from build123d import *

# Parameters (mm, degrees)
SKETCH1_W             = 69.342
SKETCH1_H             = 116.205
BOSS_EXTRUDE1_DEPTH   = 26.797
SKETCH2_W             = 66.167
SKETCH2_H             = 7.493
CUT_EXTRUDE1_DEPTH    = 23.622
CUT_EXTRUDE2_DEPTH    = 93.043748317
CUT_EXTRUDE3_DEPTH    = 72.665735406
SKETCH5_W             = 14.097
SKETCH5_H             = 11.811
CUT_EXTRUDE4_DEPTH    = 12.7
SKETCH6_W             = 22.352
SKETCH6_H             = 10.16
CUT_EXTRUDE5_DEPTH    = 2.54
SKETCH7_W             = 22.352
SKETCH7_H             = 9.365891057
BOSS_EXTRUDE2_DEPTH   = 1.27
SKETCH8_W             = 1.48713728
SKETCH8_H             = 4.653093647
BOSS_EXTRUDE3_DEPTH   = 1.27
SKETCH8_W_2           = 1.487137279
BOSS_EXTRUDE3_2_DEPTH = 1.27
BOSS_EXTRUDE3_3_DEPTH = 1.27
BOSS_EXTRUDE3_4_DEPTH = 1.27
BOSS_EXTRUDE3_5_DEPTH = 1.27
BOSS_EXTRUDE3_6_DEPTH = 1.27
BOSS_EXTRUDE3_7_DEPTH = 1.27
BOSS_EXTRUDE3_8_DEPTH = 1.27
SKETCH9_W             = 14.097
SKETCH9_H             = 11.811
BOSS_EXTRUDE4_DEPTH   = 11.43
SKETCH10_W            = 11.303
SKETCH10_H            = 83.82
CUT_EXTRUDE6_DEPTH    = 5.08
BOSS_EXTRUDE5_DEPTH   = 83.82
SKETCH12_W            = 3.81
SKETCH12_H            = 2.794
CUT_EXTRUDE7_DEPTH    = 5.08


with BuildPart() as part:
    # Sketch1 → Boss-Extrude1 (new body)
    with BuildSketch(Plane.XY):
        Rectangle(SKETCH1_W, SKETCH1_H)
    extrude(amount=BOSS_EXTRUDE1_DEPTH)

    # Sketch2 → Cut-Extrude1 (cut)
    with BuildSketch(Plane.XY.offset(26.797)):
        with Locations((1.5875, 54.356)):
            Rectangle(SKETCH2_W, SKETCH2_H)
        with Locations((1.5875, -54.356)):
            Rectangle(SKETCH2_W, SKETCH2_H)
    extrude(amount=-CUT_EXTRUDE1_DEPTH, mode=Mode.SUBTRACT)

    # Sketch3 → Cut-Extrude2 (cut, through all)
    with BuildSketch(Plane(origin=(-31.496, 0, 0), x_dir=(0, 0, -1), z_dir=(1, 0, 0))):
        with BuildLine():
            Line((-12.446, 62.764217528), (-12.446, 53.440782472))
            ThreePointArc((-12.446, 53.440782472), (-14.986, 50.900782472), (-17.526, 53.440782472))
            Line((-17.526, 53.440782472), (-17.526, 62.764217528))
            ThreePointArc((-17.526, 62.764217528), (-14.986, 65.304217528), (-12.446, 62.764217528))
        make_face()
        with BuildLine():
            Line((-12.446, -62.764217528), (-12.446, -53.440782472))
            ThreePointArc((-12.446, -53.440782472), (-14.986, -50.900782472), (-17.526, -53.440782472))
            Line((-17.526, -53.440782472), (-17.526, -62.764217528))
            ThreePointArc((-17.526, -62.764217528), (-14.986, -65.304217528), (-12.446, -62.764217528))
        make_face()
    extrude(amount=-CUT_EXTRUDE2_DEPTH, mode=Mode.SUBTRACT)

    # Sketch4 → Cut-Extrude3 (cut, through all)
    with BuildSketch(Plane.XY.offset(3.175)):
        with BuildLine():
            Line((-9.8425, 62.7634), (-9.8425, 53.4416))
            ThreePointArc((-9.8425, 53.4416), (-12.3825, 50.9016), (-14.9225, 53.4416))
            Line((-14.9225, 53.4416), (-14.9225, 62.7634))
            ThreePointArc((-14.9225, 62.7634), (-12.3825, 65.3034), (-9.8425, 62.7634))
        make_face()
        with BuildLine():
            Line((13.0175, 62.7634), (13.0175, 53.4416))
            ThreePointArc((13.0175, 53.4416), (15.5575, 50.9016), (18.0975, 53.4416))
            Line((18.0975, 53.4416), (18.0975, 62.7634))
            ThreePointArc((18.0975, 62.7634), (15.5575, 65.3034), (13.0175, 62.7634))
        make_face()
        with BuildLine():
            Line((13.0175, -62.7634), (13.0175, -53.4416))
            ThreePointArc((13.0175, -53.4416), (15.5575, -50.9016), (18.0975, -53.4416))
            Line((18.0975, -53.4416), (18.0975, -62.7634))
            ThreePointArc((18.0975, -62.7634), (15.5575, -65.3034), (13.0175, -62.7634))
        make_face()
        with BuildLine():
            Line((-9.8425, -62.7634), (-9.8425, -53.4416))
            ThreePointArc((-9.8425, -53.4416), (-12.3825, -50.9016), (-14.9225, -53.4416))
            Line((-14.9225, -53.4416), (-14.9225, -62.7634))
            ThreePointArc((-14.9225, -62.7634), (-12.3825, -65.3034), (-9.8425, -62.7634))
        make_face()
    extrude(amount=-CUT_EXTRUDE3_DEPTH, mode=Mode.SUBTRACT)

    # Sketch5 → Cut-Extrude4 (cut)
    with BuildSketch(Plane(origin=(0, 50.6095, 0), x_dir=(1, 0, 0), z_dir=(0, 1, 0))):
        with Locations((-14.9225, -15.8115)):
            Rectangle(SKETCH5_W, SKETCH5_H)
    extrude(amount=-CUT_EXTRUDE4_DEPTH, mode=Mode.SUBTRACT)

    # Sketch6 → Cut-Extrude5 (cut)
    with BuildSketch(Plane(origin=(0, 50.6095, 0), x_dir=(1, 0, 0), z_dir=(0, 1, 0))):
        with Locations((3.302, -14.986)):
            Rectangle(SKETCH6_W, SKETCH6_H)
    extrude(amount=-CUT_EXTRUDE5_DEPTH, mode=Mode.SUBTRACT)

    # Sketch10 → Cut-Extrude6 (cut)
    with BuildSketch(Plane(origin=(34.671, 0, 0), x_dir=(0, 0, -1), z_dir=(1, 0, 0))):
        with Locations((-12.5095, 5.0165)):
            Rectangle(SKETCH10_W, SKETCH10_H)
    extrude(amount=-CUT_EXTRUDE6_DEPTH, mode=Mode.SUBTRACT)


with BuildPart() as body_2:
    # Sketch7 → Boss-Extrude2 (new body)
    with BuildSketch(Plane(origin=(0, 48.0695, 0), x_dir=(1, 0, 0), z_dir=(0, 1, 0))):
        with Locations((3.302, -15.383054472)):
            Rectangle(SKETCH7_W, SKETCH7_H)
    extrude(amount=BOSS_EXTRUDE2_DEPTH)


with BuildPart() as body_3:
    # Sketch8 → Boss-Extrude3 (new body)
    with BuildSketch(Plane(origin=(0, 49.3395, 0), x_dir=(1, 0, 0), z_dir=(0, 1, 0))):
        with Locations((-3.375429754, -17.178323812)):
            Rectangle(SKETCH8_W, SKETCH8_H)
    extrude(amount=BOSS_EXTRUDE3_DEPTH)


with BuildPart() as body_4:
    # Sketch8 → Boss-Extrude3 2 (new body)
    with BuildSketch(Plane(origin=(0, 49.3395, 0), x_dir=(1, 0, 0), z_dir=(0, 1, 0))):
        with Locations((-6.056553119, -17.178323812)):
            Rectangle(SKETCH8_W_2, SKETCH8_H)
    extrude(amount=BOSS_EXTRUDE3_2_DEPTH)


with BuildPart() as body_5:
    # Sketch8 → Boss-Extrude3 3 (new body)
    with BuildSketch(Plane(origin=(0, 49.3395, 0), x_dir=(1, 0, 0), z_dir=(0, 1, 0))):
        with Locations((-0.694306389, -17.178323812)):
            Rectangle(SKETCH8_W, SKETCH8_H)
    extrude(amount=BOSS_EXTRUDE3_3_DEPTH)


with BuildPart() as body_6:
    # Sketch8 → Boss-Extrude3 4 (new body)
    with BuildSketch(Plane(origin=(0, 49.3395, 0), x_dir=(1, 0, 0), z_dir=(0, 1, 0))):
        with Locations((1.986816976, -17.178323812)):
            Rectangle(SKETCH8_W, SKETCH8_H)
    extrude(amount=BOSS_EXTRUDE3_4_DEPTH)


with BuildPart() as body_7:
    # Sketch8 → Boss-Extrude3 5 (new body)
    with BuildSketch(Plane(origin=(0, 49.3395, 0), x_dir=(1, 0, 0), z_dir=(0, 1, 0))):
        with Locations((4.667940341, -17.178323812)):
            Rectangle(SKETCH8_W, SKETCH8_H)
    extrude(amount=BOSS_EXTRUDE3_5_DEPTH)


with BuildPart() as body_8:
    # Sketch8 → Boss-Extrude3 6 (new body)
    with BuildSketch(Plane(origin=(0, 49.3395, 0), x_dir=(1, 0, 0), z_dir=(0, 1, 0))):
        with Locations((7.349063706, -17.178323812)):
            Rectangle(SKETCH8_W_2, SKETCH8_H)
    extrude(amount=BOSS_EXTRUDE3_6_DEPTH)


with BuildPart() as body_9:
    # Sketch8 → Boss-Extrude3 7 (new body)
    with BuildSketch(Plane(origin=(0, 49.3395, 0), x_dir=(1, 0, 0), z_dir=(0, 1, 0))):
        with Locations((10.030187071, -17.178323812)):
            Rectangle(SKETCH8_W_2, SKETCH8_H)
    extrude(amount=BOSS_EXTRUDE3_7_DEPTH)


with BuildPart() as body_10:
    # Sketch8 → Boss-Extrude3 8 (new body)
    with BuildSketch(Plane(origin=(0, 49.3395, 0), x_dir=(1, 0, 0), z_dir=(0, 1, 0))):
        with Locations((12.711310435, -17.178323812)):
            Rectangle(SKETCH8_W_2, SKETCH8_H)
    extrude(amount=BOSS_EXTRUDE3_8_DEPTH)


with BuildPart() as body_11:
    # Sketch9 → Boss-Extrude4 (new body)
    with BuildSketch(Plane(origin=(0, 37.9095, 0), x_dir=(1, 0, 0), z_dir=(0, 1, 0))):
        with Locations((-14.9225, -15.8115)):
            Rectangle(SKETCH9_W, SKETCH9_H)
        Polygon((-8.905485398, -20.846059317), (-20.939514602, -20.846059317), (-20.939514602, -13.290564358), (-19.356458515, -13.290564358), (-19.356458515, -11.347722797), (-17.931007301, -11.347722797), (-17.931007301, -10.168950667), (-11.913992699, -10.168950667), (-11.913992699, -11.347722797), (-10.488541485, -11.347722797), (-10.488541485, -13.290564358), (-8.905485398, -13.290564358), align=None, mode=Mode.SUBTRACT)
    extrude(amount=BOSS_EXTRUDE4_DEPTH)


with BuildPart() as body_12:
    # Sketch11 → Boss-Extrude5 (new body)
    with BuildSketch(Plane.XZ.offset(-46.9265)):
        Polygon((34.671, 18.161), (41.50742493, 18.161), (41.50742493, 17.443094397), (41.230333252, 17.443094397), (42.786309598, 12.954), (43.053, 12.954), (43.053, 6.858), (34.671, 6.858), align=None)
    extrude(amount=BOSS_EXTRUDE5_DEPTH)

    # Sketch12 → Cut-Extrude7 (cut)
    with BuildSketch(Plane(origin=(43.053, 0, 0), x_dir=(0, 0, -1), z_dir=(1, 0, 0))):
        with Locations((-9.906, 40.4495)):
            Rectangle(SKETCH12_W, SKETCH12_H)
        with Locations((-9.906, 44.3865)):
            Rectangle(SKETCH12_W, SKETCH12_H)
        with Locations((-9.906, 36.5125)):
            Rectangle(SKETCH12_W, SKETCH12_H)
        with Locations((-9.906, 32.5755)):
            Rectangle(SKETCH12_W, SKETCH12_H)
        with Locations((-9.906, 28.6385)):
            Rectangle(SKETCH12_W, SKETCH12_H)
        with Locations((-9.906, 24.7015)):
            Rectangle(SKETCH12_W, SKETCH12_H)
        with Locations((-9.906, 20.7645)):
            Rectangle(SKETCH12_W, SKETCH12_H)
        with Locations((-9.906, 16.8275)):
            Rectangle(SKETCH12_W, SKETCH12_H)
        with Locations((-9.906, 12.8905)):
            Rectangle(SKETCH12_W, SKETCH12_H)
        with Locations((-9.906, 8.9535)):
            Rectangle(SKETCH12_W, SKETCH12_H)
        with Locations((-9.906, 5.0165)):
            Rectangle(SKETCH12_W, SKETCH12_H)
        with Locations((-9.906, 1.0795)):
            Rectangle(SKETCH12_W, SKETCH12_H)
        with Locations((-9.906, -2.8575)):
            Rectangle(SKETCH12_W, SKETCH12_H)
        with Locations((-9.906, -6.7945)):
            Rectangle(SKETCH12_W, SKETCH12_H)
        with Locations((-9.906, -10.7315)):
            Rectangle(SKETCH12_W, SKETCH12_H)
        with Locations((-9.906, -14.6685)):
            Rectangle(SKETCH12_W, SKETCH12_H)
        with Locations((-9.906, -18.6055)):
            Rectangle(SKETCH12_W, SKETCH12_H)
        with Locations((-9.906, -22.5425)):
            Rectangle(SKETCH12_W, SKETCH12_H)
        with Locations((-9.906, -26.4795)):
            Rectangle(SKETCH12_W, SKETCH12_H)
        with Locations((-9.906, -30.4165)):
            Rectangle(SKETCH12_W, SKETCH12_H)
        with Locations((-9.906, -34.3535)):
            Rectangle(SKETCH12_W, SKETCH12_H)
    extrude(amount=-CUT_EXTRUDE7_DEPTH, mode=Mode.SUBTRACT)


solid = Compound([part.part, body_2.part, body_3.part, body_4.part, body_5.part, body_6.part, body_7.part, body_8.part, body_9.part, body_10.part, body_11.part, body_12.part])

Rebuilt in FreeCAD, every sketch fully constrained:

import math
import FreeCAD as App
import Part
import Sketcher
from FreeCAD import Vector
Q = App.Units.Quantity


def add_polygon(sketch, points):
    """Adds a closed chain of lines whose ends are joined by coincident constraints."""
    first, n = sketch.GeometryCount, len(points)
    for a, b in zip(points, points[1:] + points[:1]):
        sketch.addGeometry(Part.LineSegment(App.Vector(*a, 0), App.Vector(*b, 0)), False)
    for i in range(n):
        sketch.addConstraint(Sketcher.Constraint("Coincident", first + i, 2, first + (i + 1) % n, 1))

doc = App.newDocument("Part")
body = doc.addObject("PartDesign::Body", "Body")

# Sketch on XY plane
sketch1 = body.newObject("Sketcher::SketchObject", "Sketch")
sketch1.AttachmentSupport = (doc.getObject("XY_Plane"), [""])
sketch1.MapMode = "FlatFace"
add_polygon(sketch1, [(-34.671, 58.1025), (-34.671, -58.1025), (34.671, -58.1025), (34.671, 58.1025)])  # lines 0-3
sketch1.addConstraint([
    Sketcher.Constraint("Vertical", 0),
    Sketcher.Constraint("Horizontal", 1),
    Sketcher.Constraint("Vertical", 2),
    Sketcher.Constraint("Horizontal", 3),
    Sketcher.Constraint("Symmetric", 0, 2, 2, 2, -1, 1),
    Sketcher.Constraint("DistanceX", 1, 1, 1, 2, Q("2.73 in")),
    Sketcher.Constraint("DistanceY", 0, 2, 0, 1, Q("4.575 in")),
])
pad1 = body.newObject("PartDesign::Pad", "Pad")
pad1.Profile = sketch1
pad1.Length = Q("1.055 in")

# Sketch on XY plane
sketch2 = body.newObject("Sketcher::SketchObject", "Sketch001")
sketch2.AttachmentSupport = (doc.getObject("XY_Plane"), [""])
sketch2.MapMode = "FlatFace"
sketch2.AttachmentOffset = App.Placement(Vector(0, 0, 1.055 * 25.4), App.Rotation())
add_polygon(sketch2, [(-31.496, 58.1025), (-31.496, 50.6095), (34.671, 50.6095), (34.671, 58.1025)])  # lines 0-3
add_polygon(sketch2, [(-31.496, -50.6095), (-31.496, -58.1025), (34.671, -58.1025), (34.671, -50.6095)])  # lines 4-7
sketch2.addConstraint([
    Sketcher.Constraint("Vertical", 0),
    Sketcher.Constraint("Horizontal", 1),
    Sketcher.Constraint("Vertical", 2),
    Sketcher.Constraint("Horizontal", 3),
    Sketcher.Constraint("Vertical", 4),
    Sketcher.Constraint("Horizontal", 5),
    Sketcher.Constraint("Vertical", 6),
    Sketcher.Constraint("Horizontal", 7),
    Sketcher.Constraint("Symmetric", 3, 2, 4, 2, -1),
    Sketcher.Constraint("Symmetric", 1, 2, 6, 2, -1),
    Sketcher.Constraint("DistanceX", 1, 1, 1, 2, Q("2.605 in")),
    Sketcher.Constraint("DistanceY", 0, 2, 0, 1, Q("0.295 in")),
    Sketcher.Constraint("DistanceX", 0, 2, -1, 1, Q("1.24 in")),
    Sketcher.Constraint("DistanceY", 4, 2, 0, 2, Q("4.28 in")),
])
pocket1 = body.newObject("PartDesign::Pocket", "Pocket")
pocket1.Profile = sketch2
pocket1.Length = Q("0.93 in")

# Sketch on YZ plane
sketch3 = body.newObject("Sketcher::SketchObject", "Sketch002")
sketch3.AttachmentSupport = (doc.getObject("YZ_Plane"), [""])
sketch3.MapMode = "FlatFace"
sketch3.AttachmentOffset = App.Placement(Vector(0, 0, -1.24 * 25.4), App.Rotation())
sketch3.addGeometry([
    Part.LineSegment(Vector(53.440782, 12.446, 0), Vector(62.764218, 12.446, 0)),  # 0
    Part.ArcOfCircle(Part.Circle(Vector(62.764218, 14.986, 0), Vector(0, 0, 1), 2.54), math.radians(-90), math.radians(90)),  # 1
    Part.LineSegment(Vector(62.764218, 17.526, 0), Vector(53.440782, 17.526, 0)),  # 2
    Part.ArcOfCircle(Part.Circle(Vector(53.440782, 14.986, 0), Vector(0, 0, 1), 2.54), math.radians(90), math.radians(270)),  # 3
    Part.LineSegment(Vector(-62.764218, 12.446, 0), Vector(-53.440782, 12.446, 0)),  # 4
    Part.ArcOfCircle(Part.Circle(Vector(-53.440782, 14.986, 0), Vector(0, 0, 1), 2.54), math.radians(-90), math.radians(90)),  # 5
    Part.LineSegment(Vector(-53.440782, 17.526, 0), Vector(-62.764218, 17.526, 0)),  # 6
    Part.ArcOfCircle(Part.Circle(Vector(-62.764218, 14.986, 0), Vector(0, 0, 1), 2.54), math.radians(90), math.radians(270)),  # 7
], False)
sketch3.addConstraint([
    Sketcher.Constraint("Tangent", 0, 2, 1, 1),
    Sketcher.Constraint("Tangent", 1, 2, 2, 1),
    Sketcher.Constraint("Tangent", 2, 2, 3, 1),
    Sketcher.Constraint("Tangent", 3, 2, 0, 1),
    Sketcher.Constraint("Tangent", 4, 2, 5, 1),
    Sketcher.Constraint("Tangent", 5, 2, 6, 1),
    Sketcher.Constraint("Tangent", 6, 2, 7, 1),
    Sketcher.Constraint("Tangent", 7, 2, 4, 1),
    Sketcher.Constraint("Horizontal", 0),
    Sketcher.Constraint("Horizontal", 2),
    Sketcher.Constraint("Horizontal", 4),
    Sketcher.Constraint("Horizontal", 6),
    Sketcher.Constraint("Equal", 3, 5),
    Sketcher.Constraint("Symmetric", 3, 3, 5, 3, -2),
    Sketcher.Constraint("Equal", 2, 4),
    Sketcher.Constraint("Radius", 1, Q("0.1 in")),
    Sketcher.Constraint("DistanceY", -1, 1, 1, 3, Q("0.59 in")),
    Sketcher.Constraint("DistanceX", 5, 3, 1, 3, Q("4.575 in")),
    Sketcher.Constraint("DistanceX", 0, 1, 0, 2, Q("9.323435 mm")),
])
pocket2 = body.newObject("PartDesign::Pocket", "Pocket001")
pocket2.Profile = sketch3
pocket2.Type = "ThroughAll"

# Sketch on XY plane
sketch4 = body.newObject("Sketcher::SketchObject", "Sketch003")
sketch4.AttachmentSupport = (doc.getObject("XY_Plane"), [""])
sketch4.MapMode = "FlatFace"
sketch4.AttachmentOffset = App.Placement(Vector(0, 0, 0.125 * 25.4), App.Rotation())
sketch4.addGeometry([
    Part.LineSegment(Vector(-9.8425, 53.4416, 0), Vector(-9.8425, 62.7634, 0)),  # 0
    Part.ArcOfCircle(Part.Circle(Vector(-12.3825, 62.7634, 0), Vector(0, 0, 1), 2.54), math.radians(0), math.radians(180)),  # 1
    Part.LineSegment(Vector(-14.9225, 62.7634, 0), Vector(-14.9225, 53.4416, 0)),  # 2
    Part.ArcOfCircle(Part.Circle(Vector(-12.3825, 53.4416, 0), Vector(0, 0, 1), 2.54), math.radians(180), math.radians(360)),  # 3
    Part.LineSegment(Vector(13.0175, 62.7634, 0), Vector(13.0175, 53.4416, 0)),  # 4
    Part.ArcOfCircle(Part.Circle(Vector(15.5575, 53.4416, 0), Vector(0, 0, 1), 2.54), math.radians(180), math.radians(360)),  # 5
    Part.LineSegment(Vector(18.0975, 53.4416, 0), Vector(18.0975, 62.7634, 0)),  # 6
    Part.ArcOfCircle(Part.Circle(Vector(15.5575, 62.7634, 0), Vector(0, 0, 1), 2.54), math.radians(0), math.radians(180)),  # 7
    Part.LineSegment(Vector(13.0175, -53.4416, 0), Vector(13.0175, -62.7634, 0)),  # 8
    Part.ArcOfCircle(Part.Circle(Vector(15.5575, -62.7634, 0), Vector(0, 0, 1), 2.54), math.radians(180), math.radians(360)),  # 9
    Part.LineSegment(Vector(18.0975, -62.7634, 0), Vector(18.0975, -53.4416, 0)),  # 10
    Part.ArcOfCircle(Part.Circle(Vector(15.5575, -53.4416, 0), Vector(0, 0, 1), 2.54), math.radians(0), math.radians(180)),  # 11
    Part.LineSegment(Vector(-9.8425, -62.7634, 0), Vector(-9.8425, -53.4416, 0)),  # 12
    Part.ArcOfCircle(Part.Circle(Vector(-12.3825, -53.4416, 0), Vector(0, 0, 1), 2.54), math.radians(0), math.radians(180)),  # 13
    Part.LineSegment(Vector(-14.9225, -53.4416, 0), Vector(-14.9225, -62.7634, 0)),  # 14
    Part.ArcOfCircle(Part.Circle(Vector(-12.3825, -62.7634, 0), Vector(0, 0, 1), 2.54), math.radians(180), math.radians(360)),  # 15
], False)
sketch4.addConstraint([
    Sketcher.Constraint("Tangent", 0, 2, 1, 1),
    Sketcher.Constraint("Tangent", 1, 2, 2, 1),
    Sketcher.Constraint("Tangent", 2, 2, 3, 1),
    Sketcher.Constraint("Tangent", 3, 2, 0, 1),
    Sketcher.Constraint("Tangent", 4, 2, 5, 1),
    Sketcher.Constraint("Tangent", 5, 2, 6, 1),
    Sketcher.Constraint("Tangent", 6, 2, 7, 1),
    Sketcher.Constraint("Tangent", 7, 2, 4, 1),
    Sketcher.Constraint("Tangent", 8, 2, 9, 1),
    Sketcher.Constraint("Tangent", 9, 2, 10, 1),
    Sketcher.Constraint("Tangent", 10, 2, 11, 1),
    Sketcher.Constraint("Tangent", 11, 2, 8, 1),
    Sketcher.Constraint("Tangent", 12, 2, 13, 1),
    Sketcher.Constraint("Tangent", 13, 2, 14, 1),
    Sketcher.Constraint("Tangent", 14, 2, 15, 1),
    Sketcher.Constraint("Tangent", 15, 2, 12, 1),
    Sketcher.Constraint("Vertical", 0),
    Sketcher.Constraint("Vertical", 2),
    Sketcher.Constraint("Vertical", 4),
    Sketcher.Constraint("Vertical", 6),
    Sketcher.Constraint("Vertical", 8),
    Sketcher.Constraint("Vertical", 10),
    Sketcher.Constraint("Vertical", 12),
    Sketcher.Constraint("Vertical", 14),
    Sketcher.Constraint("Equal", 3, 5),
    Sketcher.Constraint("Equal", 7, 9),
    Sketcher.Constraint("Equal", 11, 13),
    Sketcher.Constraint("Symmetric", 7, 3, 9, 3, -1),
    Sketcher.Constraint("Symmetric", 3, 3, 13, 3, -1),
    Sketcher.Constraint("Horizontal", 3, 3, 5, 3),
    Sketcher.Constraint("Horizontal", 1, 3, 7, 3),
    Sketcher.Constraint("Horizontal", 11, 3, 13, 3),
    Sketcher.Constraint("Horizontal", 9, 3, 15, 3),
    Sketcher.Constraint("Radius", 1, Q("0.1 in")),
    Sketcher.Constraint("DistanceX", 0, 2, 7, 3, Q("1 in")),
    Sketcher.Constraint("DistanceY", 0, 1, 0, 2, Q("0.367 in")),
    Sketcher.Constraint("DistanceY", -1, 1, 1, 3, Q("2.471 in")),
    Sketcher.Constraint("DistanceX", 1, 3, -1, 1, Q("0.4875 in")),
])
pocket3 = body.newObject("PartDesign::Pocket", "Pocket002")
pocket3.Profile = sketch4
pocket3.Type = "ThroughAll"

# Sketch on XZ plane
sketch5 = body.newObject("Sketcher::SketchObject", "Sketch004")
sketch5.AttachmentSupport = (doc.getObject("XZ_Plane"), [""])
sketch5.MapMode = "FlatFace"
sketch5.AttachmentOffset = App.Placement(Vector(0, 0, -1.9925 * 25.4), App.Rotation())
add_polygon(sketch5, [(-21.971, 9.906), (-21.971, 21.717), (-7.874, 21.717), (-7.874, 9.906)])  # lines 0-3
sketch5.addConstraint([
    Sketcher.Constraint("Vertical", 0),
    Sketcher.Constraint("Horizontal", 1),
    Sketcher.Constraint("Vertical", 2),
    Sketcher.Constraint("Horizontal", 3),
    Sketcher.Constraint("DistanceX", 1, 1, 1, 2, Q("0.555 in")),
    Sketcher.Constraint("DistanceY", 0, 1, 0, 2, Q("0.465 in")),
    Sketcher.Constraint("DistanceX", 1, 2, -1, 1, Q("0.31 in")),
    Sketcher.Constraint("DistanceY", -1, 1, 2, 2, Q("0.39 in")),
])
pocket4 = body.newObject("PartDesign::Pocket", "Pocket003")
pocket4.Profile = sketch5
pocket4.Length = Q("0.5 in")
pocket4.Reversed = True

# Sketch on XZ plane
sketch6 = body.newObject("Sketcher::SketchObject", "Sketch005")
sketch6.AttachmentSupport = (doc.getObject("XZ_Plane"), [""])
sketch6.MapMode = "FlatFace"
sketch6.AttachmentOffset = App.Placement(Vector(0, 0, -1.9925 * 25.4), App.Rotation())
add_polygon(sketch6, [(-7.874, 9.906), (-7.874, 20.066), (14.478, 20.066), (14.478, 9.906)])  # lines 0-3
sketch6.addConstraint([
    Sketcher.Constraint("Vertical", 0),
    Sketcher.Constraint("Horizontal", 1),
    Sketcher.Constraint("Vertical", 2),
    Sketcher.Constraint("Horizontal", 3),
    Sketcher.Constraint("DistanceY", 0, 1, 0, 2, Q("0.4 in")),
    Sketcher.Constraint("DistanceX", 1, 1, 1, 2, Q("0.88 in")),
    Sketcher.Constraint("DistanceX", 0, 2, -1, 1, Q("0.31 in")),
    Sketcher.Constraint("DistanceY", -1, 1, 0, 2, Q("0.79 in")),
])
pocket5 = body.newObject("PartDesign::Pocket", "Pocket004")
pocket5.Profile = sketch6
pocket5.Length = Q("0.1 in")
pocket5.Reversed = True

# Sketch on YZ plane
sketch7 = body.newObject("Sketcher::SketchObject", "Sketch006")
sketch7.AttachmentSupport = (doc.getObject("YZ_Plane"), [""])
sketch7.MapMode = "FlatFace"
sketch7.AttachmentOffset = App.Placement(Vector(0, 0, 1.365 * 25.4), App.Rotation())
add_polygon(sketch7, [(46.9265, 18.161), (-36.8935, 18.161), (-36.8935, 6.858), (46.9265, 6.858)])  # lines 0-3
sketch7.addConstraint([
    Sketcher.Constraint("Horizontal", 0),
    Sketcher.Constraint("Vertical", 1),
    Sketcher.Constraint("Horizontal", 2),
    Sketcher.Constraint("Vertical", 3),
    Sketcher.Constraint("DistanceX", 0, 2, 0, 1, Q("3.3 in")),
    Sketcher.Constraint("DistanceY", 1, 2, 1, 1, Q("0.445 in")),
    Sketcher.Constraint("DistanceY", -1, 1, 1, 2, Q("0.27 in")),
    Sketcher.Constraint("DistanceX", 0, 2, -1, 1, Q("1.4525 in")),
])
pocket6 = body.newObject("PartDesign::Pocket", "Pocket005")
pocket6.Profile = sketch7
pocket6.Length = Q("0.2 in")
body2 = doc.addObject("PartDesign::Body", "Body001")

# Sketch on XZ plane
sketch8 = body2.newObject("Sketcher::SketchObject", "Sketch007")
sketch8.AttachmentSupport = (doc.getObject("XZ_Plane001"), [""])
sketch8.MapMode = "FlatFace"
sketch8.AttachmentOffset = App.Placement(Vector(0, 0, -1.8925 * 25.4), App.Rotation())
add_polygon(sketch8, [(-7.874, 10.700109), (-7.874, 20.066), (14.478, 20.066), (14.478, 10.700109)])  # lines 0-3
sketch8.addConstraint([
    Sketcher.Constraint("Vertical", 0),
    Sketcher.Constraint("Horizontal", 1),
    Sketcher.Constraint("Vertical", 2),
    Sketcher.Constraint("Horizontal", 3),
    Sketcher.Constraint("DistanceX", 1, 1, 1, 2, Q("0.88 in")),
    Sketcher.Constraint("DistanceX", 0, 2, -1, 1, Q("0.31 in")),
    Sketcher.Constraint("DistanceY", -1, 1, 0, 2, Q("0.79 in")),
    Sketcher.Constraint("DistanceY", 0, 1, 0, 2, Q("9.365891 mm")),
])
pad2 = body2.newObject("PartDesign::Pad", "Pad001")
pad2.Profile = sketch8
pad2.Length = Q("0.05 in")
pad2.Reversed = True
body3 = doc.addObject("PartDesign::Body", "Body002")

# Sketch on XZ plane
sketch9 = body3.newObject("Sketcher::SketchObject", "Sketch008")
sketch9.AttachmentSupport = (doc.getObject("XZ_Plane002"), [""])
sketch9.MapMode = "FlatFace"
sketch9.AttachmentOffset = App.Placement(Vector(0, 0, -1.9425 * 25.4), App.Rotation())
add_polygon(sketch9, [(-4.118998, 14.851777), (-4.118998, 19.504871), (-2.631861, 19.504871), (-2.631861, 14.851777)])  # lines 0-3
sketch9.addConstraint([
    Sketcher.Constraint("Vertical", 0),
    Sketcher.Constraint("Horizontal", 1),
    Sketcher.Constraint("Vertical", 2),
    Sketcher.Constraint("Horizontal", 3),
    Sketcher.Constraint("DistanceX", 0, 2, -1, 1, Q("4.118998 mm")),
    Sketcher.Constraint("DistanceX", 1, 1, 1, 2, Q("1.487137 mm")),
    Sketcher.Constraint("DistanceY", 0, 1, 0, 2, Q("4.653094 mm")),
    Sketcher.Constraint("DistanceY", -1, 1, 0, 2, Q("19.504871 mm")),
])
pad3 = body3.newObject("PartDesign::Pad", "Pad002")
pad3.Profile = sketch9
pad3.Length = Q("0.05 in")
pad3.Reversed = True
body4 = doc.addObject("PartDesign::Body", "Body003")

# Sketch on XZ plane
sketch10 = body4.newObject("Sketcher::SketchObject", "Sketch009")
sketch10.AttachmentSupport = (doc.getObject("XZ_Plane003"), [""])
sketch10.MapMode = "FlatFace"
sketch10.AttachmentOffset = App.Placement(Vector(0, 0, -1.9425 * 25.4), App.Rotation())
add_polygon(sketch10, [(-6.800122, 14.851777), (-6.800122, 19.504871), (-5.312984, 19.504871), (-5.312984, 14.851777)])  # lines 0-3
sketch10.addConstraint([
    Sketcher.Constraint("Vertical", 0),
    Sketcher.Constraint("Horizontal", 1),
    Sketcher.Constraint("Vertical", 2),
    Sketcher.Constraint("Horizontal", 3),
    Sketcher.Constraint("DistanceX", 1, 1, 1, 2, Q("1.487137 mm")),
    Sketcher.Constraint("DistanceY", 0, 1, 0, 2, Q("4.653094 mm")),
    Sketcher.Constraint("DistanceX", 0, 2, -1, 1, Q("6.800122 mm")),
    Sketcher.Constraint("DistanceY", -1, 1, 0, 2, Q("19.504871 mm")),
])
pad4 = body4.newObject("PartDesign::Pad", "Pad003")
pad4.Profile = sketch10
pad4.Length = Q("0.05 in")
pad4.Reversed = True
body5 = doc.addObject("PartDesign::Body", "Body004")

# Sketch on XZ plane
sketch11 = body5.newObject("Sketcher::SketchObject", "Sketch010")
sketch11.AttachmentSupport = (doc.getObject("XZ_Plane004"), [""])
sketch11.MapMode = "FlatFace"
sketch11.AttachmentOffset = App.Placement(Vector(0, 0, -1.9425 * 25.4), App.Rotation())
add_polygon(sketch11, [(-1.437875, 14.851777), (-1.437875, 19.504871), (0.049262, 19.504871), (0.049262, 14.851777)])  # lines 0-3
sketch11.addConstraint([
    Sketcher.Constraint("Vertical", 0),
    Sketcher.Constraint("Horizontal", 1),
    Sketcher.Constraint("Vertical", 2),
    Sketcher.Constraint("Horizontal", 3),
    Sketcher.Constraint("DistanceX", 1, 1, 1, 2, Q("1.487137 mm")),
    Sketcher.Constraint("DistanceY", 0, 1, 0, 2, Q("4.653094 mm")),
    Sketcher.Constraint("DistanceY", -1, 1, 0, 2, Q("19.504871 mm")),
    Sketcher.Constraint("DistanceX", 0, 2, -1, 1, Q("1.437875 mm")),
])
pad5 = body5.newObject("PartDesign::Pad", "Pad004")
pad5.Profile = sketch11
pad5.Length = Q("0.05 in")
pad5.Reversed = True
body6 = doc.addObject("PartDesign::Body", "Body005")

# Sketch on XZ plane
sketch12 = body6.newObject("Sketcher::SketchObject", "Sketch011")
sketch12.AttachmentSupport = (doc.getObject("XZ_Plane005"), [""])
sketch12.MapMode = "FlatFace"
sketch12.AttachmentOffset = App.Placement(Vector(0, 0, -1.9425 * 25.4), App.Rotation())
add_polygon(sketch12, [(1.243248, 14.851777), (1.243248, 19.504871), (2.730386, 19.504871), (2.730386, 14.851777)])  # lines 0-3
sketch12.addConstraint([
    Sketcher.Constraint("Vertical", 0),
    Sketcher.Constraint("Horizontal", 1),
    Sketcher.Constraint("Vertical", 2),
    Sketcher.Constraint("Horizontal", 3),
    Sketcher.Constraint("DistanceX", 1, 1, 1, 2, Q("1.487137 mm")),
    Sketcher.Constraint("DistanceY", 0, 1, 0, 2, Q("4.653094 mm")),
    Sketcher.Constraint("DistanceX", -1, 1, 0, 2, Q("1.243248 mm")),
    Sketcher.Constraint("DistanceY", -1, 1, 0, 2, Q("19.504871 mm")),
])
pad6 = body6.newObject("PartDesign::Pad", "Pad005")
pad6.Profile = sketch12
pad6.Length = Q("0.05 in")
pad6.Reversed = True
body7 = doc.addObject("PartDesign::Body", "Body006")

# Sketch on XZ plane
sketch13 = body7.newObject("Sketcher::SketchObject", "Sketch012")
sketch13.AttachmentSupport = (doc.getObject("XZ_Plane006"), [""])
sketch13.MapMode = "FlatFace"
sketch13.AttachmentOffset = App.Placement(Vector(0, 0, -1.9425 * 25.4), App.Rotation())
add_polygon(sketch13, [(3.924372, 14.851777), (3.924372, 19.504871), (5.411509, 19.504871), (5.411509, 14.851777)])  # lines 0-3
sketch13.addConstraint([
    Sketcher.Constraint("Vertical", 0),
    Sketcher.Constraint("Horizontal", 1),
    Sketcher.Constraint("Vertical", 2),
    Sketcher.Constraint("Horizontal", 3),
    Sketcher.Constraint("DistanceX", 1, 1, 1, 2, Q("1.487137 mm")),
    Sketcher.Constraint("DistanceY", 0, 1, 0, 2, Q("4.653094 mm")),
    Sketcher.Constraint("DistanceX", -1, 1, 0, 2, Q("3.924372 mm")),
    Sketcher.Constraint("DistanceY", -1, 1, 0, 2, Q("19.504871 mm")),
])
pad7 = body7.newObject("PartDesign::Pad", "Pad006")
pad7.Profile = sketch13
pad7.Length = Q("0.05 in")
pad7.Reversed = True
body8 = doc.addObject("PartDesign::Body", "Body007")

# Sketch on XZ plane
sketch14 = body8.newObject("Sketcher::SketchObject", "Sketch013")
sketch14.AttachmentSupport = (doc.getObject("XZ_Plane007"), [""])
sketch14.MapMode = "FlatFace"
sketch14.AttachmentOffset = App.Placement(Vector(0, 0, -1.9425 * 25.4), App.Rotation())
add_polygon(sketch14, [(6.605495, 14.851777), (6.605495, 19.504871), (8.092632, 19.504871), (8.092632, 14.851777)])  # lines 0-3
sketch14.addConstraint([
    Sketcher.Constraint("Vertical", 0),
    Sketcher.Constraint("Horizontal", 1),
    Sketcher.Constraint("Vertical", 2),
    Sketcher.Constraint("Horizontal", 3),
    Sketcher.Constraint("DistanceX", 1, 1, 1, 2, Q("1.487137 mm")),
    Sketcher.Constraint("DistanceY", 0, 1, 0, 2, Q("4.653094 mm")),
    Sketcher.Constraint("DistanceY", -1, 1, 0, 2, Q("19.504871 mm")),
    Sketcher.Constraint("DistanceX", -1, 1, 0, 2, Q("6.605495 mm")),
])
pad8 = body8.newObject("PartDesign::Pad", "Pad007")
pad8.Profile = sketch14
pad8.Length = Q("0.05 in")
pad8.Reversed = True
body9 = doc.addObject("PartDesign::Body", "Body008")

# Sketch on XZ plane
sketch15 = body9.newObject("Sketcher::SketchObject", "Sketch014")
sketch15.AttachmentSupport = (doc.getObject("XZ_Plane008"), [""])
sketch15.MapMode = "FlatFace"
sketch15.AttachmentOffset = App.Placement(Vector(0, 0, -1.9425 * 25.4), App.Rotation())
add_polygon(sketch15, [(9.286618, 14.851777), (9.286618, 19.504871), (10.773756, 19.504871), (10.773756, 14.851777)])  # lines 0-3
sketch15.addConstraint([
    Sketcher.Constraint("Vertical", 0),
    Sketcher.Constraint("Horizontal", 1),
    Sketcher.Constraint("Vertical", 2),
    Sketcher.Constraint("Horizontal", 3),
    Sketcher.Constraint("DistanceX", 1, 1, 1, 2, Q("1.487137 mm")),
    Sketcher.Constraint("DistanceY", 0, 1, 0, 2, Q("4.653094 mm")),
    Sketcher.Constraint("DistanceX", -1, 1, 0, 2, Q("9.286618 mm")),
    Sketcher.Constraint("DistanceY", -1, 1, 0, 2, Q("19.504871 mm")),
])
pad9 = body9.newObject("PartDesign::Pad", "Pad008")
pad9.Profile = sketch15
pad9.Length = Q("0.05 in")
pad9.Reversed = True
body10 = doc.addObject("PartDesign::Body", "Body009")

# Sketch on XZ plane
sketch16 = body10.newObject("Sketcher::SketchObject", "Sketch015")
sketch16.AttachmentSupport = (doc.getObject("XZ_Plane009"), [""])
sketch16.MapMode = "FlatFace"
sketch16.AttachmentOffset = App.Placement(Vector(0, 0, -1.9425 * 25.4), App.Rotation())
add_polygon(sketch16, [(11.967742, 14.851777), (11.967742, 19.504871), (13.454879, 19.504871), (13.454879, 14.851777)])  # lines 0-3
sketch16.addConstraint([
    Sketcher.Constraint("Vertical", 0),
    Sketcher.Constraint("Horizontal", 1),
    Sketcher.Constraint("Vertical", 2),
    Sketcher.Constraint("Horizontal", 3),
    Sketcher.Constraint("DistanceX", 1, 1, 1, 2, Q("1.487137 mm")),
    Sketcher.Constraint("DistanceY", 0, 1, 0, 2, Q("4.653094 mm")),
    Sketcher.Constraint("DistanceX", -1, 1, 0, 2, Q("11.967742 mm")),
    Sketcher.Constraint("DistanceY", -1, 1, 0, 2, Q("19.504871 mm")),
])
pad10 = body10.newObject("PartDesign::Pad", "Pad009")
pad10.Profile = sketch16
pad10.Length = Q("0.05 in")
pad10.Reversed = True
body11 = doc.addObject("PartDesign::Body", "Body010")

# Sketch on XZ plane
sketch17 = body11.newObject("Sketcher::SketchObject", "Sketch016")
sketch17.AttachmentSupport = (doc.getObject("XZ_Plane010"), [""])
sketch17.MapMode = "FlatFace"
sketch17.AttachmentOffset = App.Placement(Vector(0, 0, -1.4925 * 25.4), App.Rotation())
add_polygon(sketch17, [(-21.971, 9.906), (-21.971, 21.717), (-7.874, 21.717), (-7.874, 9.906)])  # lines 0-3
add_polygon(sketch17, [(-8.905485, 13.290564), (-8.905485, 20.846059), (-20.939515, 20.846059), (-20.939515, 13.290564), (-19.356459, 13.290564), (-19.356459, 11.347723), (-17.931007, 11.347723), (-17.931007, 10.168951), (-11.913993, 10.168951), (-11.913993, 11.347723), (-10.488541, 11.347723), (-10.488541, 13.290564)])  # lines 4-15
sketch17.addConstraint([
    Sketcher.Constraint("Vertical", 0),
    Sketcher.Constraint("Horizontal", 1),
    Sketcher.Constraint("Vertical", 2),
    Sketcher.Constraint("Horizontal", 3),
    Sketcher.Constraint("Vertical", 4),
    Sketcher.Constraint("Horizontal", 5),
    Sketcher.Constraint("Vertical", 6),
    Sketcher.Constraint("Horizontal", 7),
    Sketcher.Constraint("Vertical", 8),
    Sketcher.Constraint("Horizontal", 9),
    Sketcher.Constraint("Vertical", 10),
    Sketcher.Constraint("Horizontal", 11),
    Sketcher.Constraint("Vertical", 12),
    Sketcher.Constraint("Horizontal", 13),
    Sketcher.Constraint("Vertical", 14),
    Sketcher.Constraint("Horizontal", 15),
    Sketcher.Constraint("Horizontal", 9, 2, 12, 2),
    Sketcher.Constraint("Horizontal", 7, 2, 14, 2),
    Sketcher.Constraint("Equal", 9, 13),
    Sketcher.Constraint("Equal", 7, 15),
    Sketcher.Constraint("DistanceX", 1, 1, 1, 2, Q("0.555 in")),
    Sketcher.Constraint("DistanceY", 0, 1, 0, 2, Q("0.465 in")),
    Sketcher.Constraint("DistanceX", 1, 2, -1, 1, Q("0.31 in")),
    Sketcher.Constraint("DistanceY", -1, 1, 2, 2, Q("0.39 in")),
    Sketcher.Constraint("DistanceX", 5, 2, 5, 1, Q("12.034029 mm")),
    Sketcher.Constraint("DistanceX", 9, 1, 9, 2, Q("1.425451 mm")),
    Sketcher.Constraint("DistanceY", 8, 2, 8, 1, Q("1.942842 mm")),
    Sketcher.Constraint("DistanceX", 7, 1, 7, 2, Q("1.583056 mm")),
    Sketcher.Constraint("DistanceY", 4, 1, 4, 2, Q("7.555495 mm")),
    Sketcher.Constraint("DistanceY", 10, 2, 10, 1, Q("1.178772 mm")),
    Sketcher.Constraint("DistanceY", -1, 1, 4, 2, Q("20.846059 mm")),
    Sketcher.Constraint("DistanceX", 7, 2, -1, 1, Q("19.356459 mm")),
])
pad11 = body11.newObject("PartDesign::Pad", "Pad010")
pad11.Profile = sketch17
pad11.Length = Q("0.45 in")
pad11.Reversed = True
body12 = doc.addObject("PartDesign::Body", "Body011")

# Sketch on XZ plane
sketch18 = body12.newObject("Sketcher::SketchObject", "Sketch017")
sketch18.AttachmentSupport = (doc.getObject("XZ_Plane011"), [""])
sketch18.MapMode = "FlatFace"
sketch18.AttachmentOffset = App.Placement(Vector(0, 0, -1.8475 * 25.4), App.Rotation())
add_polygon(sketch18, [(41.507425, 18.161), (34.671, 18.161), (34.671, 6.858), (43.053, 6.858), (43.053, 12.954), (42.78631, 12.954), (41.230333, 17.443094), (41.507425, 17.443094)])  # lines 0-7
sketch18.addConstraint([
    Sketcher.Constraint("Horizontal", 0),
    Sketcher.Constraint("Vertical", 1),
    Sketcher.Constraint("Horizontal", 2),
    Sketcher.Constraint("Vertical", 3),
    Sketcher.Constraint("Horizontal", 4),
    Sketcher.Constraint("Horizontal", 6),
    Sketcher.Constraint("Vertical", 7),
    Sketcher.Constraint("DistanceX", 2, 1, 2, 2, Q("0.33 in")),
    Sketcher.Constraint("DistanceY", 3, 1, 3, 2, Q("0.24 in")),
    Sketcher.Constraint("DistanceY", 1, 2, 1, 1, Q("0.445 in")),
    Sketcher.Constraint("DistanceY", -1, 1, 1, 2, Q("0.27 in")),
    Sketcher.Constraint("DistanceX", -1, 1, 0, 2, Q("1.365 in")),
    Sketcher.Constraint("DistanceX", 4, 2, 4, 1, Q("0.26669 mm")),
    Sketcher.Constraint("DistanceX", 6, 1, 6, 2, Q("0.277092 mm")),
    Sketcher.Constraint("Distance", 5, Q("4.751108 mm")),
    Sketcher.Constraint("DistanceX", 0, 2, 0, 1, Q("6.836425 mm")),
])
pad12 = body12.newObject("PartDesign::Pad", "Pad011")
pad12.Profile = sketch18
pad12.Length = Q("3.3 in")

# Sketch on YZ plane
sketch19 = body12.newObject("Sketcher::SketchObject", "Sketch018")
sketch19.AttachmentSupport = (doc.getObject("YZ_Plane011"), [""])
sketch19.MapMode = "FlatFace"
sketch19.AttachmentOffset = App.Placement(Vector(0, 0, 1.695 * 25.4), App.Rotation())
add_polygon(sketch19, [(41.8465, 11.811), (39.0525, 11.811), (39.0525, 8.001), (41.8465, 8.001)])  # lines 0-3
add_polygon(sketch19, [(45.7835, 11.811), (42.9895, 11.811), (42.9895, 8.001), (45.7835, 8.001)])  # lines 4-7
add_polygon(sketch19, [(37.9095, 11.811), (35.1155, 11.811), (35.1155, 8.001), (37.9095, 8.001)])  # lines 8-11
add_polygon(sketch19, [(33.9725, 11.811), (31.1785, 11.811), (31.1785, 8.001), (33.9725, 8.001)])  # lines 12-15
add_polygon(sketch19, [(30.0355, 11.811), (27.2415, 11.811), (27.2415, 8.001), (30.0355, 8.001)])  # lines 16-19
add_polygon(sketch19, [(26.0985, 11.811), (23.3045, 11.811), (23.3045, 8.001), (26.0985, 8.001)])  # lines 20-23
add_polygon(sketch19, [(22.1615, 11.811), (19.3675, 11.811), (19.3675, 8.001), (22.1615, 8.001)])  # lines 24-27
add_polygon(sketch19, [(18.2245, 11.811), (15.4305, 11.811), (15.4305, 8.001), (18.2245, 8.001)])  # lines 28-31
add_polygon(sketch19, [(14.2875, 11.811), (11.4935, 11.811), (11.4935, 8.001), (14.2875, 8.001)])  # lines 32-35
add_polygon(sketch19, [(10.3505, 11.811), (7.5565, 11.811), (7.5565, 8.001), (10.3505, 8.001)])  # lines 36-39
add_polygon(sketch19, [(6.4135, 11.811), (3.6195, 11.811), (3.6195, 8.001), (6.4135, 8.001)])  # lines 40-43
add_polygon(sketch19, [(2.4765, 11.811), (-0.3175, 11.811), (-0.3175, 8.001), (2.4765, 8.001)])  # lines 44-47
add_polygon(sketch19, [(-1.4605, 11.811), (-4.2545, 11.811), (-4.2545, 8.001), (-1.4605, 8.001)])  # lines 48-51
add_polygon(sketch19, [(-5.3975, 11.811), (-8.1915, 11.811), (-8.1915, 8.001), (-5.3975, 8.001)])  # lines 52-55
add_polygon(sketch19, [(-9.3345, 11.811), (-12.1285, 11.811), (-12.1285, 8.001), (-9.3345, 8.001)])  # lines 56-59
add_polygon(sketch19, [(-13.2715, 11.811), (-16.0655, 11.811), (-16.0655, 8.001), (-13.2715, 8.001)])  # lines 60-63
add_polygon(sketch19, [(-17.2085, 11.811), (-20.0025, 11.811), (-20.0025, 8.001), (-17.2085, 8.001)])  # lines 64-67
add_polygon(sketch19, [(-21.1455, 11.811), (-23.9395, 11.811), (-23.9395, 8.001), (-21.1455, 8.001)])  # lines 68-71
add_polygon(sketch19, [(-25.0825, 11.811), (-27.8765, 11.811), (-27.8765, 8.001), (-25.0825, 8.001)])  # lines 72-75
add_polygon(sketch19, [(-29.0195, 11.811), (-31.8135, 11.811), (-31.8135, 8.001), (-29.0195, 8.001)])  # lines 76-79
add_polygon(sketch19, [(-32.9565, 11.811), (-35.7505, 11.811), (-35.7505, 8.001), (-32.9565, 8.001)])  # lines 80-83
sketch19.addConstraint([
    Sketcher.Constraint("Horizontal", 0),
    Sketcher.Constraint("Vertical", 1),
    Sketcher.Constraint("Horizontal", 2),
    Sketcher.Constraint("Vertical", 3),
    Sketcher.Constraint("Horizontal", 4),
    Sketcher.Constraint("Vertical", 5),
    Sketcher.Constraint("Horizontal", 6),
    Sketcher.Constraint("Vertical", 7),
    Sketcher.Constraint("Horizontal", 8),
    Sketcher.Constraint("Vertical", 9),
    Sketcher.Constraint("Horizontal", 10),
    Sketcher.Constraint("Vertical", 11),
    Sketcher.Constraint("Horizontal", 12),
    Sketcher.Constraint("Vertical", 13),
    Sketcher.Constraint("Horizontal", 14),
    Sketcher.Constraint("Vertical", 15),
    Sketcher.Constraint("Horizontal", 16),
    Sketcher.Constraint("Vertical", 17),
    Sketcher.Constraint("Horizontal", 18),
    Sketcher.Constraint("Vertical", 19),
    Sketcher.Constraint("Horizontal", 20),
    Sketcher.Constraint("Vertical", 21),
    Sketcher.Constraint("Horizontal", 22),
    Sketcher.Constraint("Vertical", 23),
    Sketcher.Constraint("Horizontal", 24),
    Sketcher.Constraint("Vertical", 25),
    Sketcher.Constraint("Horizontal", 26),
    Sketcher.Constraint("Vertical", 27),
    Sketcher.Constraint("Horizontal", 28),
    Sketcher.Constraint("Vertical", 29),
    Sketcher.Constraint("Horizontal", 30),
    Sketcher.Constraint("Vertical", 31),
    Sketcher.Constraint("Horizontal", 32),
    Sketcher.Constraint("Vertical", 33),
    Sketcher.Constraint("Horizontal", 34),
    Sketcher.Constraint("Vertical", 35),
    Sketcher.Constraint("Horizontal", 36),
    Sketcher.Constraint("Vertical", 37),
    Sketcher.Constraint("Horizontal", 38),
    Sketcher.Constraint("Vertical", 39),
    Sketcher.Constraint("Horizontal", 40),
    Sketcher.Constraint("Vertical", 41),
    Sketcher.Constraint("Horizontal", 42),
    Sketcher.Constraint("Vertical", 43),
    Sketcher.Constraint("Horizontal", 44),
    Sketcher.Constraint("Vertical", 45),
    Sketcher.Constraint("Horizontal", 46),
    Sketcher.Constraint("Vertical", 47),
    Sketcher.Constraint("Horizontal", 48),
    Sketcher.Constraint("Vertical", 49),
    Sketcher.Constraint("Horizontal", 50),
    Sketcher.Constraint("Vertical", 51),
    Sketcher.Constraint("Horizontal", 52),
    Sketcher.Constraint("Vertical", 53),
    Sketcher.Constraint("Horizontal", 54),
    Sketcher.Constraint("Vertical", 55),
    Sketcher.Constraint("Horizontal", 56),
    Sketcher.Constraint("Vertical", 57),
    Sketcher.Constraint("Horizontal", 58),
    Sketcher.Constraint("Vertical", 59),
    Sketcher.Constraint("Horizontal", 60),
    Sketcher.Constraint("Vertical", 61),
    Sketcher.Constraint("Horizontal", 62),
    Sketcher.Constraint("Vertical", 63),
    Sketcher.Constraint("Horizontal", 64),
    Sketcher.Constraint("Vertical", 65),
    Sketcher.Constraint("Horizontal", 66),
    Sketcher.Constraint("Vertical", 67),
    Sketcher.Constraint("Horizontal", 68),
    Sketcher.Constraint("Vertical", 69),
    Sketcher.Constraint("Horizontal", 70),
    Sketcher.Constraint("Vertical", 71),
    Sketcher.Constraint("Horizontal", 72),
    Sketcher.Constraint("Vertical", 73),
    Sketcher.Constraint("Horizontal", 74),
    Sketcher.Constraint("Vertical", 75),
    Sketcher.Constraint("Horizontal", 76),
    Sketcher.Constraint("Vertical", 77),
    Sketcher.Constraint("Horizontal", 78),
    Sketcher.Constraint("Vertical", 79),
    Sketcher.Constraint("Horizontal", 80),
    Sketcher.Constraint("Vertical", 81),
    Sketcher.Constraint("Horizontal", 82),
    Sketcher.Constraint("Vertical", 83),
    Sketcher.Constraint("Horizontal", 3, 2, 4, 2),
    Sketcher.Constraint("Horizontal", 2, 2, 5, 2),
    Sketcher.Constraint("Horizontal", 7, 2, 8, 2),
    Sketcher.Constraint("Horizontal", 6, 2, 9, 2),
    Sketcher.Constraint("Horizontal", 11, 2, 12, 2),
    Sketcher.Constraint("Horizontal", 10, 2, 13, 2),
    Sketcher.Constraint("Horizontal", 15, 2, 16, 2),
    Sketcher.Constraint("Horizontal", 14, 2, 17, 2),
    Sketcher.Constraint("Horizontal", 19, 2, 20, 2),
    Sketcher.Constraint("Horizontal", 18, 2, 21, 2),
    Sketcher.Constraint("Horizontal", 23, 2, 24, 2),
    Sketcher.Constraint("Horizontal", 22, 2, 25, 2),
    Sketcher.Constraint("Horizontal", 27, 2, 28, 2),
    Sketcher.Constraint("Horizontal", 26, 2, 29, 2),
    Sketcher.Constraint("Horizontal", 31, 2, 32, 2),
    Sketcher.Constraint("Horizontal", 30, 2, 33, 2),
    Sketcher.Constraint("Horizontal", 35, 2, 36, 2),
    Sketcher.Constraint("Horizontal", 34, 2, 37, 2),
    Sketcher.Constraint("Horizontal", 39, 2, 40, 2),
    Sketcher.Constraint("Horizontal", 38, 2, 41, 2),
    Sketcher.Constraint("Horizontal", 43, 2, 44, 2),
    Sketcher.Constraint("Horizontal", 42, 2, 45, 2),
    Sketcher.Constraint("Horizontal", 47, 2, 48, 2),
    Sketcher.Constraint("Horizontal", 46, 2, 49, 2),
    Sketcher.Constraint("Horizontal", 51, 2, 52, 2),
    Sketcher.Constraint("Horizontal", 50, 2, 53, 2),
    Sketcher.Constraint("Horizontal", 55, 2, 56, 2),
    Sketcher.Constraint("Horizontal", 54, 2, 57, 2),
    Sketcher.Constraint("Horizontal", 59, 2, 60, 2),
    Sketcher.Constraint("Horizontal", 58, 2, 61, 2),
    Sketcher.Constraint("Horizontal", 63, 2, 64, 2),
    Sketcher.Constraint("Horizontal", 62, 2, 65, 2),
    Sketcher.Constraint("Horizontal", 67, 2, 68, 2),
    Sketcher.Constraint("Horizontal", 66, 2, 69, 2),
    Sketcher.Constraint("Horizontal", 71, 2, 72, 2),
    Sketcher.Constraint("Horizontal", 70, 2, 73, 2),
    Sketcher.Constraint("Horizontal", 75, 2, 76, 2),
    Sketcher.Constraint("Horizontal", 74, 2, 77, 2),
    Sketcher.Constraint("Horizontal", 79, 2, 80, 2),
    Sketcher.Constraint("Horizontal", 78, 2, 81, 2),
    Sketcher.Constraint("Equal", 2, 4),
    Sketcher.Constraint("Equal", 6, 8),
    Sketcher.Constraint("Equal", 10, 12),
    Sketcher.Constraint("Equal", 14, 16),
    Sketcher.Constraint("Equal", 18, 20),
    Sketcher.Constraint("Equal", 22, 24),
    Sketcher.Constraint("Equal", 26, 28),
    Sketcher.Constraint("Equal", 30, 32),
    Sketcher.Constraint("Equal", 34, 36),
    Sketcher.Constraint("Equal", 38, 40),
    Sketcher.Constraint("Equal", 42, 44),
    Sketcher.Constraint("Equal", 46, 48),
    Sketcher.Constraint("Equal", 50, 52),
    Sketcher.Constraint("Equal", 54, 56),
    Sketcher.Constraint("Equal", 58, 60),
    Sketcher.Constraint("Equal", 62, 64),
    Sketcher.Constraint("Equal", 66, 68),
    Sketcher.Constraint("Equal", 70, 72),
    Sketcher.Constraint("Equal", 74, 76),
    Sketcher.Constraint("Equal", 78, 80),
    Sketcher.Constraint("DistanceX", 0, 2, 0, 1, Q("0.11 in")),
    Sketcher.Constraint("DistanceY", 1, 2, 1, 1, Q("0.15 in")),
    Sketcher.Constraint("DistanceY", -1, 1, 0, 2, Q("0.465 in")),
    Sketcher.Constraint("DistanceX", -1, 1, 34, 2, Q("0.5625 in")),
    Sketcher.Constraint("DistanceX", -1, 1, 0, 2, Q("1.5375 in")),
    Sketcher.Constraint("DistanceX", -1, 1, 4, 2, Q("1.6925 in")),
    Sketcher.Constraint("DistanceX", -1, 1, 8, 2, Q("1.3825 in")),
    Sketcher.Constraint("DistanceX", -1, 1, 12, 2, Q("1.2275 in")),
    Sketcher.Constraint("DistanceX", -1, 1, 16, 2, Q("1.0725 in")),
    Sketcher.Constraint("DistanceX", -1, 1, 20, 2, Q("0.9175 in")),
    Sketcher.Constraint("DistanceX", -1, 1, 24, 2, Q("0.7625 in")),
    Sketcher.Constraint("DistanceX", -1, 1, 28, 2, Q("0.6075 in")),
    Sketcher.Constraint("DistanceX", -1, 1, 36, 2, Q("0.2975 in")),
    Sketcher.Constraint("DistanceX", -1, 1, 40, 2, Q("0.1425 in")),
    Sketcher.Constraint("DistanceX", 44, 2, -1, 1, Q("0.0125 in")),
    Sketcher.Constraint("DistanceX", 48, 2, -1, 1, Q("0.1675 in")),
    Sketcher.Constraint("DistanceX", 52, 2, -1, 1, Q("0.3225 in")),
    Sketcher.Constraint("DistanceX", 56, 2, -1, 1, Q("0.4775 in")),
    Sketcher.Constraint("DistanceX", 60, 2, -1, 1, Q("0.6325 in")),
    Sketcher.Constraint("DistanceX", 64, 2, -1, 1, Q("0.7875 in")),
    Sketcher.Constraint("DistanceX", 68, 2, -1, 1, Q("0.9425 in")),
    Sketcher.Constraint("DistanceX", 72, 2, -1, 1, Q("1.0975 in")),
    Sketcher.Constraint("DistanceX", 76, 2, -1, 1, Q("1.2525 in")),
    Sketcher.Constraint("DistanceX", 80, 2, -1, 1, Q("1.4075 in")),
])
pocket7 = body12.newObject("PartDesign::Pocket", "Pocket006")
pocket7.Profile = sketch19
pocket7.Length = Q("0.2 in")

doc.recompute()
